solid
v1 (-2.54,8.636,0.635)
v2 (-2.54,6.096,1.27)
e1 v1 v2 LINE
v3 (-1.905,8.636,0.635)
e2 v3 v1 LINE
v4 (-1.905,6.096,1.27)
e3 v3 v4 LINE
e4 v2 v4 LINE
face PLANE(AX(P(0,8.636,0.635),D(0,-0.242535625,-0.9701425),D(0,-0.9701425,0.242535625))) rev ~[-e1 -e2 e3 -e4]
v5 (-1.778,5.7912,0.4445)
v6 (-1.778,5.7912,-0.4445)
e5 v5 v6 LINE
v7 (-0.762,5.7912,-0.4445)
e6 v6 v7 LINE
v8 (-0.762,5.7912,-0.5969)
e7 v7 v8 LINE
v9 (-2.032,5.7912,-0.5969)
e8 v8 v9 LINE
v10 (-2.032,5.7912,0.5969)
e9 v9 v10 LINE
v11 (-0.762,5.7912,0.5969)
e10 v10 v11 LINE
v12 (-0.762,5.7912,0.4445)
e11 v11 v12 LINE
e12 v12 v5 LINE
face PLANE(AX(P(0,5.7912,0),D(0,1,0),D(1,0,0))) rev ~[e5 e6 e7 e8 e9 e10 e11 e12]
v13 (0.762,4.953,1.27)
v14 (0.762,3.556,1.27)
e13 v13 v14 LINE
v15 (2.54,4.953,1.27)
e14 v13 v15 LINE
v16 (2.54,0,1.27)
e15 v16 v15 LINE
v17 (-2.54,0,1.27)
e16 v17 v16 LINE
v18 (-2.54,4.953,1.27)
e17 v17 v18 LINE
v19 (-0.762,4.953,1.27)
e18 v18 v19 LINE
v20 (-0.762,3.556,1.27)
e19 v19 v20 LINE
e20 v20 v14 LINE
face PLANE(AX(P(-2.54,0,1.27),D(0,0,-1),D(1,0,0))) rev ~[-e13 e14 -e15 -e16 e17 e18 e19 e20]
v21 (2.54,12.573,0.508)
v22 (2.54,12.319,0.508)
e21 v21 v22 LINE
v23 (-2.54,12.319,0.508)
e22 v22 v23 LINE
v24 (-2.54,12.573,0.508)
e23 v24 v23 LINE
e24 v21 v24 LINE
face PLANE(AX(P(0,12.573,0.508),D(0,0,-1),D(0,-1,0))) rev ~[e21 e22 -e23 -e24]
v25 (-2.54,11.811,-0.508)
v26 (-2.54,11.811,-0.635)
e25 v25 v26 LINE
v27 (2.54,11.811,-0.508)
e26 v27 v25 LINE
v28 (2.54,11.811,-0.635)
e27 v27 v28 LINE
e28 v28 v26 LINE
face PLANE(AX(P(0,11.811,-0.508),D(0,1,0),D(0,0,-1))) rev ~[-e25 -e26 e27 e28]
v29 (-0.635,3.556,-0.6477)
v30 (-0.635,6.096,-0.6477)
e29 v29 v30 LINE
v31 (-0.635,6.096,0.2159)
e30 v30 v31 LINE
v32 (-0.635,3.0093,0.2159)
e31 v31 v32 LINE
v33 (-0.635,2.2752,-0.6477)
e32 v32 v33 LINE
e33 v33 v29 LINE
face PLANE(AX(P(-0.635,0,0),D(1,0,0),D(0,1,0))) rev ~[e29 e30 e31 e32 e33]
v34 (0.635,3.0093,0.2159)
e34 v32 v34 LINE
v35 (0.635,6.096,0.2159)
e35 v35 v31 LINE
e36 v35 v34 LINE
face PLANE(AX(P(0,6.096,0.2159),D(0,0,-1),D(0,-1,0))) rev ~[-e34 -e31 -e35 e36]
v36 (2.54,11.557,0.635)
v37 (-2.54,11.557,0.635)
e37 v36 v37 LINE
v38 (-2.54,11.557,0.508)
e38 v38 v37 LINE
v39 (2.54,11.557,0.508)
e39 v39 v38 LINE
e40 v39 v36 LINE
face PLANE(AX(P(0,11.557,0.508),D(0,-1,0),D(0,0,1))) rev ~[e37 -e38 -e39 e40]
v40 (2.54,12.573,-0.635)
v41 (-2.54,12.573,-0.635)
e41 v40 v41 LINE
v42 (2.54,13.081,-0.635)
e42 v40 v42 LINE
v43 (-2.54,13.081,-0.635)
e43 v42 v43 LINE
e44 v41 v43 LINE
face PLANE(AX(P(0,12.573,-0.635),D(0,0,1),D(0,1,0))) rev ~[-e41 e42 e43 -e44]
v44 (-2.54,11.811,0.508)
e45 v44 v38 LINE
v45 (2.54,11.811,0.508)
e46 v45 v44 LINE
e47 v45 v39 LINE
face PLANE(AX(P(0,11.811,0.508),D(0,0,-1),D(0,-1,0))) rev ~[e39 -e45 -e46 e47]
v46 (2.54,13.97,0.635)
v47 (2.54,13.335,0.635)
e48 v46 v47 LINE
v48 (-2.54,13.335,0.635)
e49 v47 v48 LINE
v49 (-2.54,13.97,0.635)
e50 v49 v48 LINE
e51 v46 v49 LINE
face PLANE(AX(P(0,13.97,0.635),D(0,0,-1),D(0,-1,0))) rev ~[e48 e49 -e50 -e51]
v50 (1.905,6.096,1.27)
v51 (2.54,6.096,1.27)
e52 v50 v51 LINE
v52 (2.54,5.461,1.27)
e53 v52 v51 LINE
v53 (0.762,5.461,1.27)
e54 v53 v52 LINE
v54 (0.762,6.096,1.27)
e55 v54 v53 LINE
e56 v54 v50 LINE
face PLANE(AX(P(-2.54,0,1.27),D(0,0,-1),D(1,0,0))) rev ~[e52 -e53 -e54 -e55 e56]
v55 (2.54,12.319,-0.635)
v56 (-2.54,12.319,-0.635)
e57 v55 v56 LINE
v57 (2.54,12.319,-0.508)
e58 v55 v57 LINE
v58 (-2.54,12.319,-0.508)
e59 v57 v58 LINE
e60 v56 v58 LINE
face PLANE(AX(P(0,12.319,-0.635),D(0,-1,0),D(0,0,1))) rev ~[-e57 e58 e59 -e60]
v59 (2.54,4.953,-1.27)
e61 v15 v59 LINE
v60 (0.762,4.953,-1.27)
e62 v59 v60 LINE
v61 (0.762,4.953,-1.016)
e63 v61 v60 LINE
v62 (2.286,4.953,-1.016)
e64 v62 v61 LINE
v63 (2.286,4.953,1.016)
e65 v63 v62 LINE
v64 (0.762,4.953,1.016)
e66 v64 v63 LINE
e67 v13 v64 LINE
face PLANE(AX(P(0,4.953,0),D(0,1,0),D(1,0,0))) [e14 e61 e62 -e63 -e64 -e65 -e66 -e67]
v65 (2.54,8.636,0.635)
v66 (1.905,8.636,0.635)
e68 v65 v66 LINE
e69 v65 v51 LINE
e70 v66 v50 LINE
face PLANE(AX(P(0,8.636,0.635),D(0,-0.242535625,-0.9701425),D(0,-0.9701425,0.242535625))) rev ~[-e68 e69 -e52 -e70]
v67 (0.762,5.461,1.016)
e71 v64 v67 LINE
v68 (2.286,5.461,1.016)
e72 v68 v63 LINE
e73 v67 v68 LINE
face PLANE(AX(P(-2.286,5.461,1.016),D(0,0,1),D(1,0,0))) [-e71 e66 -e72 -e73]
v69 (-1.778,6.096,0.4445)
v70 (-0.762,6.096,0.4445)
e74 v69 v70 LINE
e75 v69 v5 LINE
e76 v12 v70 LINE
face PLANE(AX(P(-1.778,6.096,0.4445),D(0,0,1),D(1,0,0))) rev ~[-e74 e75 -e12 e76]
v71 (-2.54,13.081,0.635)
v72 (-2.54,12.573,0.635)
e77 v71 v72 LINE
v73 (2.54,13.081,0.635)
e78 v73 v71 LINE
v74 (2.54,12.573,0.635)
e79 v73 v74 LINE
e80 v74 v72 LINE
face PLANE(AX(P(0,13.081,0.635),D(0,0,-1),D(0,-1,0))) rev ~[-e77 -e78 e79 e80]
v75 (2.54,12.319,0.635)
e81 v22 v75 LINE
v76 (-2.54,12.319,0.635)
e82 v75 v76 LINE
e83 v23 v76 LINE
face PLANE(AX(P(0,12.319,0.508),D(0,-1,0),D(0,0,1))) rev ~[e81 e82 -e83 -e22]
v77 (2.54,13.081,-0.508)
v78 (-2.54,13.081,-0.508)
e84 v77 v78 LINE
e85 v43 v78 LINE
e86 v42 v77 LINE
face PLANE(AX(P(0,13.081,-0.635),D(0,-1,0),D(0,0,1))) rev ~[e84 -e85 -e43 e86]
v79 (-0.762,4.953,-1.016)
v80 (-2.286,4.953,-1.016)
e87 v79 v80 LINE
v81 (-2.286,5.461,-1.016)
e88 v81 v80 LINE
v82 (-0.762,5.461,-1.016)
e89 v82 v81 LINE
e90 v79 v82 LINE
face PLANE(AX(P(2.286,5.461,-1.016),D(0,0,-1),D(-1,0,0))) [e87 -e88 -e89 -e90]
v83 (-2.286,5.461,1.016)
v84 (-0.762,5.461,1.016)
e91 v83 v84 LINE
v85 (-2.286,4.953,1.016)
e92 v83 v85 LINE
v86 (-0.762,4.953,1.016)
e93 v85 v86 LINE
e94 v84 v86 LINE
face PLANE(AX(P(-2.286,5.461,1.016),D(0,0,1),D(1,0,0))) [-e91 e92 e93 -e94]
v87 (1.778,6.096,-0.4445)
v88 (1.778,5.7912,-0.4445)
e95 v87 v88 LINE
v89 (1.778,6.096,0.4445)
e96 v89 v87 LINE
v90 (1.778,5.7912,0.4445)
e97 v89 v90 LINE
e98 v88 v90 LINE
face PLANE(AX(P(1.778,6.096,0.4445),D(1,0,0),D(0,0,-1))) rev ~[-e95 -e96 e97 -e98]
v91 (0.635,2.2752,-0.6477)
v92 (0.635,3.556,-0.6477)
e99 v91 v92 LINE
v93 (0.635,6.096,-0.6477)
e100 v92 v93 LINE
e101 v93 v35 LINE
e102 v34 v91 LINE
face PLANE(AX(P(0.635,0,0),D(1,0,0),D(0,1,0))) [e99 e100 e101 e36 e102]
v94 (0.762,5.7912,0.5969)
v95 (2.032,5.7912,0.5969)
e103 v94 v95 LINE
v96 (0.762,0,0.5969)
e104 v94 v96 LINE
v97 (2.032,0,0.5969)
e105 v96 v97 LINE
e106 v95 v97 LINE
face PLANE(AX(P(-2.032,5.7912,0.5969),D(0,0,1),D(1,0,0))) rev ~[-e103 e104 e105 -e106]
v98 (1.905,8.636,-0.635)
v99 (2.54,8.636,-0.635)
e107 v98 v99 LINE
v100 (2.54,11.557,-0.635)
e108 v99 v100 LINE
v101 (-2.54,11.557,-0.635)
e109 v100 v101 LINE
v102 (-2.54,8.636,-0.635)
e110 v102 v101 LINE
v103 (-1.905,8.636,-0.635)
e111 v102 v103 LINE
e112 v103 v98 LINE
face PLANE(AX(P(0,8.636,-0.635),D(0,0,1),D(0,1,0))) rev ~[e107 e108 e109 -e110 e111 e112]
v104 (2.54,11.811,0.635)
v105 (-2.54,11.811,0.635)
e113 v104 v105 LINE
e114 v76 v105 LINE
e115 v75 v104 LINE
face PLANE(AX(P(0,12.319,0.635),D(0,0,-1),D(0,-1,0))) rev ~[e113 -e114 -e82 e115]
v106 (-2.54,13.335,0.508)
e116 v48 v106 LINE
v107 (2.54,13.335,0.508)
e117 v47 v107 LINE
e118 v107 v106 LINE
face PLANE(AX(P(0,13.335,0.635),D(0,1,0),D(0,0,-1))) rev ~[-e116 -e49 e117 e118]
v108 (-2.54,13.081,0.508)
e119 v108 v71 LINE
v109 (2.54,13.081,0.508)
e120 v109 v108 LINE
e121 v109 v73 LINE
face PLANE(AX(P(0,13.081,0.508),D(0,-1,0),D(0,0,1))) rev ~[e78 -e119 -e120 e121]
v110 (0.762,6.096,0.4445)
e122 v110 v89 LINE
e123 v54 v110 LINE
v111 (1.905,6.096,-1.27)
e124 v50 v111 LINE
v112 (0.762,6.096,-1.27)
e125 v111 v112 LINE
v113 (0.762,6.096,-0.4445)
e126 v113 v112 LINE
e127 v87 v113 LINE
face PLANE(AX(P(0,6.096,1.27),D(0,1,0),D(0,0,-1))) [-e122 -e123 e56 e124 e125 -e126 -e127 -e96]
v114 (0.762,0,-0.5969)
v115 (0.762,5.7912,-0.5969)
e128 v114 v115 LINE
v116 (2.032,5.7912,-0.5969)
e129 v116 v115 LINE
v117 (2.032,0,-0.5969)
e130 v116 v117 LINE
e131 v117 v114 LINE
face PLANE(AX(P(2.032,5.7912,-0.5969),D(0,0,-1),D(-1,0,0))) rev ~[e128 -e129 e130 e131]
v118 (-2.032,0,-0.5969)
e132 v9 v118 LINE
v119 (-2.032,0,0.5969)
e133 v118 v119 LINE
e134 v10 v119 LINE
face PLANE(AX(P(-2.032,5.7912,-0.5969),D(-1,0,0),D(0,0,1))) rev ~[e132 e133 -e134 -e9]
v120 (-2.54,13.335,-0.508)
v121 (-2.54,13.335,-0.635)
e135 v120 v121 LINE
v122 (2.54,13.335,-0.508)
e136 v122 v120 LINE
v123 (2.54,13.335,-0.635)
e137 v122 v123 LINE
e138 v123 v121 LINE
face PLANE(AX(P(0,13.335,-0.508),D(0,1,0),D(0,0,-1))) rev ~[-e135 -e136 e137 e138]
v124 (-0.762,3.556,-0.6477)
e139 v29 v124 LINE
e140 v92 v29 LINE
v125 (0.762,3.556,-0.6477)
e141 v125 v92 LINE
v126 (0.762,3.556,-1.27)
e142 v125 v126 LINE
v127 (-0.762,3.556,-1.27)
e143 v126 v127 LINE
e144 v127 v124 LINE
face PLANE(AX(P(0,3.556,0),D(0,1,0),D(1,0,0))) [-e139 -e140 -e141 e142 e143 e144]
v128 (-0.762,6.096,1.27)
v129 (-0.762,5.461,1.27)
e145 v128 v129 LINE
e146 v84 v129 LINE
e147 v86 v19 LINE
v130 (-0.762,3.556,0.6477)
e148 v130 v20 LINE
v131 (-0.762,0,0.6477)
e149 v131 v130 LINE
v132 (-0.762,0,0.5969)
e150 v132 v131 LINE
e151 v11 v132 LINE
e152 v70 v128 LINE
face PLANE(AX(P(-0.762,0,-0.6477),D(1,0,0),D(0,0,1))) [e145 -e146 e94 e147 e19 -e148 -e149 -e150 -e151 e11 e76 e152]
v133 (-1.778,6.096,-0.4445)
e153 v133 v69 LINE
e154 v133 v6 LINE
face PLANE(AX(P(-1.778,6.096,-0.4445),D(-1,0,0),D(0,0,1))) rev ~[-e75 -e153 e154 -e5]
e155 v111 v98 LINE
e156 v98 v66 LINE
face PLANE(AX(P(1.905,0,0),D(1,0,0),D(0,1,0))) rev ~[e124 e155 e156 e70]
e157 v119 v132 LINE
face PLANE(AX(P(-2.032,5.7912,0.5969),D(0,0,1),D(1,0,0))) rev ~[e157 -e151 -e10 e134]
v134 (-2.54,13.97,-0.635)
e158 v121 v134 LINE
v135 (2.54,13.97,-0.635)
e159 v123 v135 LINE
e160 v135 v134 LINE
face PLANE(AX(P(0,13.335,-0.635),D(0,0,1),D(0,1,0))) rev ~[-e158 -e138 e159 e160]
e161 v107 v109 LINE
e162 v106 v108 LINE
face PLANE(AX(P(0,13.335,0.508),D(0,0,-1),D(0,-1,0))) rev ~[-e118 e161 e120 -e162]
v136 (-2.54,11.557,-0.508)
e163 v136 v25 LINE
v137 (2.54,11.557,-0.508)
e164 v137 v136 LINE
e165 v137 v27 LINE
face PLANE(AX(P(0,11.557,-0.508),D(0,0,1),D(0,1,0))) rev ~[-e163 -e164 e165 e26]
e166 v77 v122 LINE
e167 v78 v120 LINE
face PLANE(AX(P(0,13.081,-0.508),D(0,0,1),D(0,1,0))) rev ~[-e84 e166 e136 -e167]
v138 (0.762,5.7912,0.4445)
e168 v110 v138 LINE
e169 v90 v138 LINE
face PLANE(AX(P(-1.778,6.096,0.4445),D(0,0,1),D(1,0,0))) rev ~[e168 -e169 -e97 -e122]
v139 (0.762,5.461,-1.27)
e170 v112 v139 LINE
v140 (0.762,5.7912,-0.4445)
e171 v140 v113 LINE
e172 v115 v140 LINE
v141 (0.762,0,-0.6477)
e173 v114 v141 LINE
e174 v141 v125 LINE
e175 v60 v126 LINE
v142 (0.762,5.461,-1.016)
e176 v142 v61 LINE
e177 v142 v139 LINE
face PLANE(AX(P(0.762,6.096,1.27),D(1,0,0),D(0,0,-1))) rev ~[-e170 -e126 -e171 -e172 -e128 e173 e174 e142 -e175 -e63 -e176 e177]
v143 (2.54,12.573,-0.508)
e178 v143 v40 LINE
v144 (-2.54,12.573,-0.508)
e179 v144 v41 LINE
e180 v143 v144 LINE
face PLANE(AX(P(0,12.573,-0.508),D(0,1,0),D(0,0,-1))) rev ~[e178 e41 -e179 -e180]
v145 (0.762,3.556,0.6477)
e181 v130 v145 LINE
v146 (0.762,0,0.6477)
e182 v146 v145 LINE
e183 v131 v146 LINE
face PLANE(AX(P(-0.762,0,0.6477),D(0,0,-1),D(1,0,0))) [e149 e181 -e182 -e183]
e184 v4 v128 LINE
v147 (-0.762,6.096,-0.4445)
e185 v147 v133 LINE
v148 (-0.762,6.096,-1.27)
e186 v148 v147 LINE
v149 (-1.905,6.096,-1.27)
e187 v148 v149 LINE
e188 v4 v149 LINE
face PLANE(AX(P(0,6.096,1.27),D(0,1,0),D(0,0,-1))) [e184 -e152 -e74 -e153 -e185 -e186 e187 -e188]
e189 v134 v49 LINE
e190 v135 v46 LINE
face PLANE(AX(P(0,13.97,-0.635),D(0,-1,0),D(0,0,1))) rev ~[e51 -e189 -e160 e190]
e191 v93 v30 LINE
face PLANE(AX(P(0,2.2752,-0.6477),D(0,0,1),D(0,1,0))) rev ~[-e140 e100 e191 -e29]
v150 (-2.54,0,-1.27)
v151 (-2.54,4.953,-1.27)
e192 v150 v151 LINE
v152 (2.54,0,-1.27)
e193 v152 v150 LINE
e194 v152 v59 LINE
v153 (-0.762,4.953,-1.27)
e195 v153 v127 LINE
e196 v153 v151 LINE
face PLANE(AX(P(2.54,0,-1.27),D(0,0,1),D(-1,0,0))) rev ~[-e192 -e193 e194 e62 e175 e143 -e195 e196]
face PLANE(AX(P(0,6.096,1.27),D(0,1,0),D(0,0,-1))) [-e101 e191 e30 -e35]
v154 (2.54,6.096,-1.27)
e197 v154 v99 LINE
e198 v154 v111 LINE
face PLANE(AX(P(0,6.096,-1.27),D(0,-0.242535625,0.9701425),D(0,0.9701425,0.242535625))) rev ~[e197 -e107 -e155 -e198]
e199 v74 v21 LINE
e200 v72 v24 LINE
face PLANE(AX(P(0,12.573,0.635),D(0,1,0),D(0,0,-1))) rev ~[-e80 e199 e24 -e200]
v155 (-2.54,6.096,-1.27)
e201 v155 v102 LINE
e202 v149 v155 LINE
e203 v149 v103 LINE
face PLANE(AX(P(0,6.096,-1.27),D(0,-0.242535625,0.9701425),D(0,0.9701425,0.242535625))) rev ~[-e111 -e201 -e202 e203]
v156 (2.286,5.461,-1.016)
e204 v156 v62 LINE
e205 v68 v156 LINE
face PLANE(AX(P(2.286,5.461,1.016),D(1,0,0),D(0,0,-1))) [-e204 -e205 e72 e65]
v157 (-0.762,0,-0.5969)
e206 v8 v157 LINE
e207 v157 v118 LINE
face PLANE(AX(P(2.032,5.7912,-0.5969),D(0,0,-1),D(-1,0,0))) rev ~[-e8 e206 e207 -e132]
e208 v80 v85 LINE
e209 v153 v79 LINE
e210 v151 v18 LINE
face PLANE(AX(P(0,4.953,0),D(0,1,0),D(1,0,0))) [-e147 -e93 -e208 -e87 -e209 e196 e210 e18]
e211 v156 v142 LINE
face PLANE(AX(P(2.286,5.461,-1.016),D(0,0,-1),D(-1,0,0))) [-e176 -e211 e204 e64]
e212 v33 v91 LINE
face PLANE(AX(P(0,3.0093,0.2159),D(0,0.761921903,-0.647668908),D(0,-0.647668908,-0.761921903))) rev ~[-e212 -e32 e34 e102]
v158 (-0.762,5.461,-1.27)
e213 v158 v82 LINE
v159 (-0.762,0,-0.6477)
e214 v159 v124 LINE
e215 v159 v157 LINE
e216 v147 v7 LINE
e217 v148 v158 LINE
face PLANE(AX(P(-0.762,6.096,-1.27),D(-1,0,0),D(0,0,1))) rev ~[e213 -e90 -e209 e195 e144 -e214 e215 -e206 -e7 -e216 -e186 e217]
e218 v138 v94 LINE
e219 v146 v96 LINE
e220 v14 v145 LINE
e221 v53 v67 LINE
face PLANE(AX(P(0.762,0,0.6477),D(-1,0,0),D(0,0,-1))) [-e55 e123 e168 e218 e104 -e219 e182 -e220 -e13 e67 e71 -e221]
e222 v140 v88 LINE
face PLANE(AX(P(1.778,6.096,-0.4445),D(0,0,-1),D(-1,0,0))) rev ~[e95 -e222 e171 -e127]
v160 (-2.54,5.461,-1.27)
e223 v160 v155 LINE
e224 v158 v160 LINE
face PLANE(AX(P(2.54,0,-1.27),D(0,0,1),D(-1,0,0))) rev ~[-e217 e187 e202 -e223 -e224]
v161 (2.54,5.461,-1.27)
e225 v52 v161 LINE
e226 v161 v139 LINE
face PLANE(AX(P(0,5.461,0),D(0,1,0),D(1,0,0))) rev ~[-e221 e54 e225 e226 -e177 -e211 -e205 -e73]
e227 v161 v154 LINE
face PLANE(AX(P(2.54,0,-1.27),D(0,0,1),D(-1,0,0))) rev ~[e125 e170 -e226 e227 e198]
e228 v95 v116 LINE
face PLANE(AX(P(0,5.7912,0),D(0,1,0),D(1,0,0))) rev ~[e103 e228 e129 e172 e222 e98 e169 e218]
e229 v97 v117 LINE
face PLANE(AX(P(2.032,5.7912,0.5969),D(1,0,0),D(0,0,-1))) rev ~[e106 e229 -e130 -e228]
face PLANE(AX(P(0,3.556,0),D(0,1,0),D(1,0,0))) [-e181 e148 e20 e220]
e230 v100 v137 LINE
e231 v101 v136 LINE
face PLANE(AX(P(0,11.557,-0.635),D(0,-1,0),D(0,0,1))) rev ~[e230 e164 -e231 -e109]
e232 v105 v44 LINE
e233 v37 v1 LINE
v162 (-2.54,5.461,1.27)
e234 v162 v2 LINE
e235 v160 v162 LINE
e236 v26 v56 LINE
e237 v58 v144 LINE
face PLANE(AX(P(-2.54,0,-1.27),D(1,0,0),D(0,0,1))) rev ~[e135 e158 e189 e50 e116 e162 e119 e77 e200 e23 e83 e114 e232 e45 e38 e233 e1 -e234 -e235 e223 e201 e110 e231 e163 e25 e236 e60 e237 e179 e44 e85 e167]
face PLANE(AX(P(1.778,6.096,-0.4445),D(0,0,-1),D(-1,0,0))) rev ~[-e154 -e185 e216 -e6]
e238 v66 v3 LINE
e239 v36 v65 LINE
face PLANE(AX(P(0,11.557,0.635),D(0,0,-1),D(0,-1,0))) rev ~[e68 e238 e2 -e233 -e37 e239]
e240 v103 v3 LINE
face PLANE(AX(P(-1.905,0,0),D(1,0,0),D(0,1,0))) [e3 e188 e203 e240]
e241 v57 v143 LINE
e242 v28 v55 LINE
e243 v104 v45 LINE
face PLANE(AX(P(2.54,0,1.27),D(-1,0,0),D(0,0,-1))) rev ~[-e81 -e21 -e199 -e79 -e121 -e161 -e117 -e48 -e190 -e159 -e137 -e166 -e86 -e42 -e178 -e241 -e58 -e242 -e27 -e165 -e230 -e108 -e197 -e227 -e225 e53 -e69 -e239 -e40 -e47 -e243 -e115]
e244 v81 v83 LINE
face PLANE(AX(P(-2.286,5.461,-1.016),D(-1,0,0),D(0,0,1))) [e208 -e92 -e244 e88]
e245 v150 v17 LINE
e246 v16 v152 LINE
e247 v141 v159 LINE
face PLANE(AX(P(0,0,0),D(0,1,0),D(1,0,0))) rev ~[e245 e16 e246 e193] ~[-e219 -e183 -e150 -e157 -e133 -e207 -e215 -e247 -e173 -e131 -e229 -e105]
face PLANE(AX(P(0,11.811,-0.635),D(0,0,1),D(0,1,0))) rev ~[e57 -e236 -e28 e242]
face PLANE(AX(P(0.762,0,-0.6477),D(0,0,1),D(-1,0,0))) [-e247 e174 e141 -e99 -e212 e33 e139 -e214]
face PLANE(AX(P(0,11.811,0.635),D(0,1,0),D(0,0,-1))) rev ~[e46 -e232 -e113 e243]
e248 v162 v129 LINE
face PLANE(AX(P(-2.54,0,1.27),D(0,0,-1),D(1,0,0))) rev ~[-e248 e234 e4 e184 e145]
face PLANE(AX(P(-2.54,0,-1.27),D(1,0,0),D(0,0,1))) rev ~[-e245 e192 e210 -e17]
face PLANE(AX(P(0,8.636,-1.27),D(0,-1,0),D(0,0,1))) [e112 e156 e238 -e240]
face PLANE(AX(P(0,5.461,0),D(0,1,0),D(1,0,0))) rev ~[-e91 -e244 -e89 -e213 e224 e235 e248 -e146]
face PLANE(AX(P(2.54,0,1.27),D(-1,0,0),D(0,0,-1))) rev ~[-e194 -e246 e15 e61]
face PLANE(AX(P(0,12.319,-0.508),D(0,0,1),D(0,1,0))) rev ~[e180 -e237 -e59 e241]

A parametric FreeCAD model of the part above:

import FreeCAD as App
import Part
import Sketcher
Q = App.Units.Quantity

doc = App.newDocument("Part")
body = doc.addObject("PartDesign::Body", "Body")

# Sketch on XZ plane
sketch1 = body.newObject("Sketcher::SketchObject", "Sketch")
sketch1.AttachmentSupport = (doc.getObject("XZ_Plane"), [""])
sketch1.MapMode = "FlatFace"
sketch1.addGeometry(Part.LineSegment(App.Vector(2.5, -1.3, 0), App.Vector(-2.5, -1.3, 0)), False)
sketch1.addGeometry(Part.LineSegment(App.Vector(-2.5, -1.3, 0), App.Vector(-2.5, 1.3, 0)), False)
sketch1.addGeometry(Part.LineSegment(App.Vector(-2.5, 1.3, 0), App.Vector(2.5, 1.3, 0)), False)
sketch1.addGeometry(Part.LineSegment(App.Vector(2.5, 1.3, 0), App.Vector(2.5, -1.3, 0)), False)
sketch1.addConstraint(Sketcher.Constraint("Coincident", 0, 2, 1, 1))
sketch1.addConstraint(Sketcher.Constraint("Coincident", 1, 2, 2, 1))
sketch1.addConstraint(Sketcher.Constraint("Coincident", 2, 2, 3, 1))
sketch1.addConstraint(Sketcher.Constraint("Coincident", 3, 2, 0, 1))
sketch1.addConstraint(Sketcher.Constraint("Horizontal", 0))
sketch1.addConstraint(Sketcher.Constraint("Vertical", 1))
sketch1.addConstraint(Sketcher.Constraint("Horizontal", 2))
sketch1.addConstraint(Sketcher.Constraint("Vertical", 3))
sketch1.addConstraint(Sketcher.Constraint("Symmetric", 0, 2, 2, 2, -1, 1))
sketch1.addConstraint(Sketcher.Constraint("DistanceX", 0, 2, 0, 1, Q("0.2 in")))
sketch1.addConstraint(Sketcher.Constraint("DistanceY", 1, 1, 1, 2, Q("0.1 in")))
pad1 = body.newObject("PartDesign::Pad", "Pad")
pad1.Profile = sketch1
pad1.Length = Q("0.24 in")
pad1.Reversed = True

# Sketch on XZ plane
sketch2 = body.newObject("Sketcher::SketchObject", "Sketch001")
sketch2.AttachmentSupport = (doc.getObject("XZ_Plane"), [""])
sketch2.MapMode = "FlatFace"
sketch2.AttachmentOffset = App.Placement(App.Vector(0, 0, -0.215 * 25.4), App.Rotation())
sketch2.addGeometry(Part.LineSegment(App.Vector(2.8, -2.5, 0), App.Vector(-2.8, -2.5, 0)), False)
sketch2.addGeometry(Part.LineSegment(App.Vector(-2.8, -2.5, 0), App.Vector(-2.8, 2.5, 0)), False)
sketch2.addGeometry(Part.LineSegment(App.Vector(-2.8, 2.5, 0), App.Vector(2.8, 2.5, 0)), False)
sketch2.addGeometry(Part.LineSegment(App.Vector(2.8, 2.5, 0), App.Vector(2.8, -2.5, 0)), False)
sketch2.addGeometry(Part.LineSegment(App.Vector(-2.3, 1, 0), App.Vector(-2.3, -1, 0)), False)
sketch2.addGeometry(Part.LineSegment(App.Vector(-2.3, -1, 0), App.Vector(2.3, -1, 0)), False)
sketch2.addGeometry(Part.LineSegment(App.Vector(2.3, -1, 0), App.Vector(2.3, 1, 0)), False)
sketch2.addGeometry(Part.LineSegment(App.Vector(2.3, 1, 0), App.Vector(-2.3, 1, 0)), False)
sketch2.addConstraint(Sketcher.Constraint("Coincident", 0, 2, 1, 1))
sketch2.addConstraint(Sketcher.Constraint("Coincident", 1, 2, 2, 1))
sketch2.addConstraint(Sketcher.Constraint("Coincident", 2, 2, 3, 1))
sketch2.addConstraint(Sketcher.Constraint("Coincident", 3, 2, 0, 1))
sketch2.addConstraint(Sketcher.Constraint("Coincident", 4, 2, 5, 1))
sketch2.addConstraint(Sketcher.Constraint("Coincident", 5, 2, 6, 1))
sketch2.addConstraint(Sketcher.Constraint("Coincident", 6, 2, 7, 1))
sketch2.addConstraint(Sketcher.Constraint("Coincident", 7, 2, 4, 1))
sketch2.addConstraint(Sketcher.Constraint("Horizontal", 0))
sketch2.addConstraint(Sketcher.Constraint("Vertical", 1))
sketch2.addConstraint(Sketcher.Constraint("Horizontal", 2))
sketch2.addConstraint(Sketcher.Constraint("Vertical", 3))
sketch2.addConstraint(Sketcher.Constraint("Vertical", 4))
sketch2.addConstraint(Sketcher.Constraint("Horizontal", 5))
sketch2.addConstraint(Sketcher.Constraint("Vertical", 6))
sketch2.addConstraint(Sketcher.Constraint("Horizontal", 7))
sketch2.addConstraint(Sketcher.Constraint("Symmetric", 0, 2, 2, 2, -1, 1))
sketch2.addConstraint(Sketcher.Constraint("Symmetric", 4, 2, 6, 2, -1, 1))
sketch2.addConstraint(Sketcher.Constraint("DistanceY", 1, 1, 1, 2, Q("0.2 in")))
sketch2.addConstraint(Sketcher.Constraint("DistanceX", 0, 2, 0, 1, Q("0.22 in")))
sketch2.addConstraint(Sketcher.Constraint("DistanceX", 5, 1, 5, 2, Q("0.18 in")))
sketch2.addConstraint(Sketcher.Constraint("DistanceY", 4, 2, 4, 1, Q("0.08 in")))
pocket1 = body.newObject("PartDesign::Pocket", "Pocket")
pocket1.Profile = sketch2
pocket1.Length = Q("0.02 in")
pocket1.Reversed = True

# Sketch on XZ plane
sketch3 = body.newObject("Sketcher::SketchObject", "Sketch002")
sketch3.AttachmentSupport = (doc.getObject("XZ_Plane"), [""])
sketch3.MapMode = "FlatFace"
sketch3.AttachmentOffset = App.Placement(App.Vector(0, 0, -0.24 * 25.4), App.Rotation())
sketch3.addGeometry(Part.LineSegment(App.Vector(0.8, -1.3, 0), App.Vector(-0.8, -1.3, 0)), False)
sketch3.addGeometry(Part.LineSegment(App.Vector(-0.8, -1.3, 0), App.Vector(-0.8, 1.3, 0)), False)
sketch3.addGeometry(Part.LineSegment(App.Vector(-0.8, 1.3, 0), App.Vector(0.8, 1.3, 0)), False)
sketch3.addGeometry(Part.LineSegment(App.Vector(0.8, 1.3, 0), App.Vector(0.8, -1.3, 0)), False)
sketch3.addConstraint(Sketcher.Constraint("Coincident", 0, 2, 1, 1))
sketch3.addConstraint(Sketcher.Constraint("Coincident", 1, 2, 2, 1))
sketch3.addConstraint(Sketcher.Constraint("Coincident", 2, 2, 3, 1))
sketch3.addConstraint(Sketcher.Constraint("Coincident", 3, 2, 0, 1))
sketch3.addConstraint(Sketcher.Constraint("Horizontal", 0))
sketch3.addConstraint(Sketcher.Constraint("Vertical", 1))
sketch3.addConstraint(Sketcher.Constraint("Horizontal", 2))
sketch3.addConstraint(Sketcher.Constraint("Vertical", 3))
sketch3.addConstraint(Sketcher.Constraint("Symmetric", 0, 2, 2, 2, -1, 1))
sketch3.addConstraint(Sketcher.Constraint("DistanceY", 1, 1, 1, 2, Q("0.1 in")))
sketch3.addConstraint(Sketcher.Constraint("DistanceX", 0, 2, 0, 1, Q("0.06 in")))
pocket2 = body.newObject("PartDesign::Pocket", "Pocket001")
pocket2.Profile = sketch3
pocket2.Length = Q("0.1 in")
pocket2.Reversed = True

# Sketch on XZ plane
sketch4 = body.newObject("Sketcher::SketchObject", "Sketch003")
sketch4.AttachmentSupport = (doc.getObject("XZ_Plane"), [""])
sketch4.MapMode = "FlatFace"
sketch4.AttachmentOffset = App.Placement(App.Vector(0, 0, -0.24 * 25.4), App.Rotation())
sketch4.addGeometry(Part.LineSegment(App.Vector(1.8, -0.4, 0), App.Vector(-1.8, -0.4, 0)), False)
sketch4.addGeometry(Part.LineSegment(App.Vector(-1.8, -0.4, 0), App.Vector(-1.8, 0.4, 0)), False)
sketch4.addGeometry(Part.LineSegment(App.Vector(-1.8, 0.4, 0), App.Vector(1.8, 0.4, 0)), False)
sketch4.addGeometry(Part.LineSegment(App.Vector(1.8, 0.4, 0), App.Vector(1.8, -0.4, 0)), False)
sketch4.addConstraint(Sketcher.Constraint("Coincident", 0, 2, 1, 1))
sketch4.addConstraint(Sketcher.Constraint("Coincident", 1, 2, 2, 1))
sketch4.addConstraint(Sketcher.Constraint("Coincident", 2, 2, 3, 1))
sketch4.addConstraint(Sketcher.Constraint("Coincident", 3, 2, 0, 1))
sketch4.addConstraint(Sketcher.Constraint("Horizontal", 0))
sketch4.addConstraint(Sketcher.Constraint("Vertical", 1))
sketch4.addConstraint(Sketcher.Constraint("Horizontal", 2))
sketch4.addConstraint(Sketcher.Constraint("Vertical", 3))
sketch4.addConstraint(Sketcher.Constraint("Symmetric", 0, 2, 2, 2, -1, 1))
sketch4.addConstraint(Sketcher.Constraint("DistanceX", 0, 2, 0, 1, Q("0.14 in")))
sketch4.addConstraint(Sketcher.Constraint("DistanceY", 1, 1, 1, 2, Q("0.035 in")))
pocket3 = body.newObject("PartDesign::Pocket", "Pocket002")
pocket3.Profile = sketch4
pocket3.Length = Q("0.24 in")
pocket3.Reversed = True

# Sketch on XZ plane
sketch5 = body.newObject("Sketcher::SketchObject", "Sketch004")
sketch5.AttachmentSupport = (doc.getObject("XZ_Plane"), [""])
sketch5.MapMode = "FlatFace"
sketch5.AttachmentOffset = App.Placement(App.Vector(0, 0, -0.228 * 25.4), App.Rotation())
sketch5.addGeometry(Part.LineSegment(App.Vector(2, -0.6, 0), App.Vector(-2, -0.6, 0)), False)
sketch5.addGeometry(Part.LineSegment(App.Vector(-2, -0.6, 0), App.Vector(-2, 0.6, 0)), False)
sketch5.addGeometry(Part.LineSegment(App.Vector(-2, 0.6, 0), App.Vector(2, 0.6, 0)), False)
sketch5.addGeometry(Part.LineSegment(App.Vector(2, 0.6, 0), App.Vector(2, -0.6, 0)), False)
sketch5.addConstraint(Sketcher.Constraint("Coincident", 0, 2, 1, 1))
sketch5.addConstraint(Sketcher.Constraint("Coincident", 1, 2, 2, 1))
sketch5.addConstraint(Sketcher.Constraint("Coincident", 2, 2, 3, 1))
sketch5.addConstraint(Sketcher.Constraint("Coincident", 3, 2, 0, 1))
sketch5.addConstraint(Sketcher.Constraint("Horizontal", 0))
sketch5.addConstraint(Sketcher.Constraint("Vertical", 1))
sketch5.addConstraint(Sketcher.Constraint("Horizontal", 2))
sketch5.addConstraint(Sketcher.Constraint("Vertical", 3))
sketch5.addConstraint(Sketcher.Constraint("Symmetric", 0, 2, 2, 2, -1, 1))
sketch5.addConstraint(Sketcher.Constraint("DistanceX", 0, 2, 0, 1, Q("0.16 in")))
sketch5.addConstraint(Sketcher.Constraint("DistanceY", 1, 1, 1, 2, Q("0.047 in")))
pocket4 = body.newObject("PartDesign::Pocket", "Pocket003")
pocket4.Profile = sketch5
pocket4.Length = Q("0.24 in")
pocket4.Reversed = True

# Sketch on XZ plane
sketch6 = body.newObject("Sketcher::SketchObject", "Sketch005")
sketch6.AttachmentSupport = (doc.getObject("XZ_Plane"), [""])
sketch6.MapMode = "FlatFace"
sketch6.addGeometry(Part.LineSegment(App.Vector(0.8, -0.6, 0), App.Vector(-0.8, -0.6, 0)), False)
sketch6.addGeometry(Part.LineSegment(App.Vector(-0.8, -0.6, 0), App.Vector(-0.8, 0.6, 0)), False)
sketch6.addGeometry(Part.LineSegment(App.Vector(-0.8, 0.6, 0), App.Vector(0.8, 0.6, 0)), False)
sketch6.addGeometry(Part.LineSegment(App.Vector(0.8, 0.6, 0), App.Vector(0.8, -0.6, 0)), False)
sketch6.addConstraint(Sketcher.Constraint("Coincident", 0, 2, 1, 1))
sketch6.addConstraint(Sketcher.Constraint("Coincident", 1, 2, 2, 1))
sketch6.addConstraint(Sketcher.Constraint("Coincident", 2, 2, 3, 1))
sketch6.addConstraint(Sketcher.Constraint("Coincident", 3, 2, 0, 1))
sketch6.addConstraint(Sketcher.Constraint("Horizontal", 0))
sketch6.addConstraint(Sketcher.Constraint("Vertical", 1))
sketch6.addConstraint(Sketcher.Constraint("Horizontal", 2))
sketch6.addConstraint(Sketcher.Constraint("Vertical", 3))
sketch6.addConstraint(Sketcher.Constraint("Symmetric", 0, 2, 2, 2, -1, 1))
sketch6.addConstraint(Sketcher.Constraint("DistanceX", 0, 2, 0, 1, Q("0.06 in")))
sketch6.addConstraint(Sketcher.Constraint("DistanceY", 1, 1, 1, 2, Q("0.051 in")))
pocket5 = body.newObject("PartDesign::Pocket", "Pocket004")
pocket5.Profile = sketch6
pocket5.Length = Q("0.14 in")

# Sketch on YZ plane
sketch7 = body.newObject("Sketcher::SketchObject", "Sketch006")
sketch7.AttachmentSupport = (doc.getObject("YZ_Plane"), [""])
sketch7.MapMode = "FlatFace"
sketch7.addGeometry(Part.LineSegment(App.Vector(6.1, 0.2, 0), App.Vector(3, 0.2, 0)), False)
sketch7.addGeometry(Part.LineSegment(App.Vector(3, 0.2, 0), App.Vector(2.3, -0.6, 0)), False)
sketch7.addGeometry(Part.LineSegment(App.Vector(2.3, -0.6, 0), App.Vector(6.1, -0.6, 0)), False)
sketch7.addGeometry(Part.LineSegment(App.Vector(6.1, -0.6, 0), App.Vector(6.1, 0.2, 0)), False)
sketch7.addConstraint(Sketcher.Constraint("Coincident", 0, 2, 1, 1))
sketch7.addConstraint(Sketcher.Constraint("Coincident", 1, 2, 2, 1))
sketch7.addConstraint(Sketcher.Constraint("Coincident", 2, 2, 3, 1))
sketch7.addConstraint(Sketcher.Constraint("Coincident", 3, 2, 0, 1))
sketch7.addConstraint(Sketcher.Constraint("Horizontal", 0))
sketch7.addConstraint(Sketcher.Constraint("Horizontal", 2))
sketch7.addConstraint(Sketcher.Constraint("Vertical", 3))
sketch7.addConstraint(Sketcher.Constraint("DistanceY", 3, 1, 3, 2, Q("0.034 in")))
sketch7.addConstraint(Sketcher.Constraint("DistanceX", -1, 1, 2, 2, Q("0.24 in")))
sketch7.addConstraint(Sketcher.Constraint("DistanceX", 0, 2, 0, 1, 3.0867))
sketch7.addConstraint(Sketcher.Constraint("DistanceX", 2, 1, 2, 2, 3.8208))
sketch7.addConstraint(Sketcher.Constraint("DistanceY", -1, 1, 0, 2, Q("0.0085 in")))
pad2 = body.newObject("PartDesign::Pad", "Pad001")
pad2.Profile = sketch7
pad2.Length = Q("0.05 in")
pad2.Midplane = True

# Sketch on YZ plane
sketch8 = body.newObject("Sketcher::SketchObject", "Sketch007")
sketch8.AttachmentSupport = (doc.getObject("YZ_Plane"), [""])
sketch8.MapMode = "FlatFace"
sketch8.addGeometry(Part.LineSegment(App.Vector(8.64, 0.64, 0), App.Vector(6.1, 1.27, 0)), False)
sketch8.addGeometry(Part.LineSegment(App.Vector(6.1, 1.27, 0), App.Vector(6.1, -1.27, 0)), False)
sketch8.addGeometry(Part.LineSegment(App.Vector(6.1, -1.27, 0), App.Vector(8.64, -0.64, 0)), False)
sketch8.addGeometry(Part.LineSegment(App.Vector(8.64, -0.64, 0), App.Vector(11.56, -0.64, 0)), False)
sketch8.addGeometry(Part.LineSegment(App.Vector(11.56, -0.64, 0), App.Vector(11.56, -0.51, 0)), False)
sketch8.addGeometry(Part.LineSegment(App.Vector(11.56, -0.51, 0), App.Vector(11.81, -0.51, 0)), False)
sketch8.addGeometry(Part.LineSegment(App.Vector(11.81, -0.51, 0), App.Vector(11.81, -0.64, 0)), False)
sketch8.addGeometry(Part.LineSegment(App.Vector(11.81, -0.64, 0), App.Vector(12.32, -0.64, 0)), False)
sketch8.addGeometry(Part.LineSegment(App.Vector(12.32, -0.64, 0), App.Vector(12.32, -0.51, 0)), False)
sketch8.addGeometry(Part.LineSegment(App.Vector(12.32, -0.51, 0), App.Vector(12.57, -0.51, 0)), False)
sketch8.addGeometry(Part.LineSegment(App.Vector(12.57, -0.51, 0), App.Vector(12.57, -0.64, 0)), False)
sketch8.addGeometry(Part.LineSegment(App.Vector(12.57, -0.64, 0), App.Vector(13.08, -0.64, 0)), False)
sketch8.addGeometry(Part.LineSegment(App.Vector(13.08, -0.64, 0), App.Vector(13.08, -0.51, 0)), False)
sketch8.addGeometry(Part.LineSegment(App.Vector(13.08, -0.51, 0), App.Vector(13.34, -0.51, 0)), False)
sketch8.addGeometry(Part.LineSegment(App.Vector(13.34, -0.51, 0), App.Vector(13.34, -0.64, 0)), False)
sketch8.addGeometry(Part.LineSegment(App.Vector(13.34, -0.64, 0), App.Vector(13.97, -0.64, 0)), False)
sketch8.addGeometry(Part.LineSegment(App.Vector(13.97, -0.64, 0), App.Vector(13.97, 0.64, 0)), False)
sketch8.addGeometry(Part.LineSegment(App.Vector(13.97, 0.64, 0), App.Vector(13.34, 0.64, 0)), False)
sketch8.addGeometry(Part.LineSegment(App.Vector(13.34, 0.64, 0), App.Vector(13.34, 0.51, 0)), False)
sketch8.addGeometry(Part.LineSegment(App.Vector(13.34, 0.51, 0), App.Vector(13.08, 0.51, 0)), False)
sketch8.addGeometry(Part.LineSegment(App.Vector(13.08, 0.51, 0), App.Vector(13.08, 0.64, 0)), False)
sketch8.addGeometry(Part.LineSegment(App.Vector(13.08, 0.64, 0), App.Vector(12.57, 0.64, 0)), False)
sketch8.addGeometry(Part.LineSegment(App.Vector(12.57, 0.64, 0), App.Vector(12.57, 0.51, 0)), False)
sketch8.addGeometry(Part.LineSegment(App.Vector(12.57, 0.51, 0), App.Vector(12.32, 0.51, 0)), False)
sketch8.addGeometry(Part.LineSegment(App.Vector(12.32, 0.51, 0), App.Vector(12.32, 0.64, 0)), False)
sketch8.addGeometry(Part.LineSegment(App.Vector(12.32, 0.64, 0), App.Vector(11.81, 0.64, 0)), False)
sketch8.addGeometry(Part.LineSegment(App.Vector(11.81, 0.64, 0), App.Vector(11.81, 0.51, 0)), False)
sketch8.addGeometry(Part.LineSegment(App.Vector(11.81, 0.51, 0), App.Vector(11.56, 0.51, 0)), False)
sketch8.addGeometry(Part.LineSegment(App.Vector(11.56, 0.51, 0), App.Vector(11.56, 0.64, 0)), False)
sketch8.addGeometry(Part.LineSegment(App.Vector(11.56, 0.64, 0), App.Vector(8.64, 0.64, 0)), False)
sketch8.addConstraint(Sketcher.Constraint("Coincident", 0, 2, 1, 1))
sketch8.addConstraint(Sketcher.Constraint("Coincident", 1, 2, 2, 1))
sketch8.addConstraint(Sketcher.Constraint("Coincident", 2, 2, 3, 1))
sketch8.addConstraint(Sketcher.Constraint("Coincident", 3, 2, 4, 1))
sketch8.addConstraint(Sketcher.Constraint("Coincident", 4, 2, 5, 1))
sketch8.addConstraint(Sketcher.Constraint("Coincident", 5, 2, 6, 1))
sketch8.addConstraint(Sketcher.Constraint("Coincident", 6, 2, 7, 1))
sketch8.addConstraint(Sketcher.Constraint("Coincident", 7, 2, 8, 1))
sketch8.addConstraint(Sketcher.Constraint("Coincident", 8, 2, 9, 1))
sketch8.addConstraint(Sketcher.Constraint("Coincident", 9, 2, 10, 1))
sketch8.addConstraint(Sketcher.Constraint("Coincident", 10, 2, 11, 1))
sketch8.addConstraint(Sketcher.Constraint("Coincident", 11, 2, 12, 1))
sketch8.addConstraint(Sketcher.Constraint("Coincident", 12, 2, 13, 1))
sketch8.addConstraint(Sketcher.Constraint("Coincident", 13, 2, 14, 1))
sketch8.addConstraint(Sketcher.Constraint("Coincident", 14, 2, 15, 1))
sketch8.addConstraint(Sketcher.Constraint("Coincident", 15, 2, 16, 1))
sketch8.addConstraint(Sketcher.Constraint("Coincident", 16, 2, 17, 1))
sketch8.addConstraint(Sketcher.Constraint("Coincident", 17, 2, 18, 1))
sketch8.addConstraint(Sketcher.Constraint("Coincident", 18, 2, 19, 1))
sketch8.addConstraint(Sketcher.Constraint("Coincident", 19, 2, 20, 1))
sketch8.addConstraint(Sketcher.Constraint("Coincident", 20, 2, 21, 1))
sketch8.addConstraint(Sketcher.Constraint("Coincident", 21, 2, 22, 1))
sketch8.addConstraint(Sketcher.Constraint("Coincident", 22, 2, 23, 1))
sketch8.addConstraint(Sketcher.Constraint("Coincident", 23, 2, 24, 1))
sketch8.addConstraint(Sketcher.Constraint("Coincident", 24, 2, 25, 1))
sketch8.addConstraint(Sketcher.Constraint("Coincident", 25, 2, 26, 1))
sketch8.addConstraint(Sketcher.Constraint("Coincident", 26, 2, 27, 1))
sketch8.addConstraint(Sketcher.Constraint("Coincident", 27, 2, 28, 1))
sketch8.addConstraint(Sketcher.Constraint("Coincident", 28, 2, 29, 1))
sketch8.addConstraint(Sketcher.Constraint("Coincident", 29, 2, 0, 1))
sketch8.addConstraint(Sketcher.Constraint("Vertical", 1))
sketch8.addConstraint(Sketcher.Constraint("Horizontal", 3))
sketch8.addConstraint(Sketcher.Constraint("Vertical", 4))
sketch8.addConstraint(Sketcher.Constraint("Horizontal", 5))
sketch8.addConstraint(Sketcher.Constraint("Vertical", 6))
sketch8.addConstraint(Sketcher.Constraint("Horizontal", 7))
sketch8.addConstraint(Sketcher.Constraint("Vertical", 8))
sketch8.addConstraint(Sketcher.Constraint("Horizontal", 9))
sketch8.addConstraint(Sketcher.Constraint("Vertical", 10))
sketch8.addConstraint(Sketcher.Constraint("Horizontal", 11))
sketch8.addConstraint(Sketcher.Constraint("Vertical", 12))
sketch8.addConstraint(Sketcher.Constraint("Horizontal", 13))
sketch8.addConstraint(Sketcher.Constraint("Vertical", 14))
sketch8.addConstraint(Sketcher.Constraint("Horizontal", 15))
sketch8.addConstraint(Sketcher.Constraint("Vertical", 16))
sketch8.addConstraint(Sketcher.Constraint("Horizontal", 17))
sketch8.addConstraint(Sketcher.Constraint("Vertical", 18))
sketch8.addConstraint(Sketcher.Constraint("Horizontal", 19))
sketch8.addConstraint(Sketcher.Constraint("Vertical", 20))
sketch8.addConstraint(Sketcher.Constraint("Horizontal", 21))
sketch8.addConstraint(Sketcher.Constraint("Vertical", 22))
sketch8.addConstraint(Sketcher.Constraint("Horizontal", 23))
sketch8.addConstraint(Sketcher.Constraint("Vertical", 24))
sketch8.addConstraint(Sketcher.Constraint("Horizontal", 25))
sketch8.addConstraint(Sketcher.Constraint("Vertical", 26))
sketch8.addConstraint(Sketcher.Constraint("Horizontal", 27))
sketch8.addConstraint(Sketcher.Constraint("Vertical", 28))
sketch8.addConstraint(Sketcher.Constraint("Horizontal", 29))
sketch8.addConstraint(Sketcher.Constraint("Symmetric", 14, 2, 17, 2, -1))
sketch8.addConstraint(Sketcher.Constraint("Symmetric", 12, 2, 19, 2, -1))
sketch8.addConstraint(Sketcher.Constraint("Symmetric", 10, 2, 21, 2, -1))
sketch8.addConstraint(Sketcher.Constraint("Symmetric", 8, 2, 23, 2, -1))
sketch8.addConstraint(Sketcher.Constraint("Symmetric", 6, 2, 25, 2, -1))
sketch8.addConstraint(Sketcher.Constraint("Symmetric", 4, 2, 27, 2, -1))
sketch8.addConstraint(Sketcher.Constraint("Symmetric", 2, 2, 29, 2, -1))
sketch8.addConstraint(Sketcher.Constraint("Horizontal", 3, 2, 6, 2))
sketch8.addConstraint(Sketcher.Constraint("Horizontal", 5, 2, 8, 2))
sketch8.addConstraint(Sketcher.Constraint("Horizontal", 7, 2, 10, 2))
sketch8.addConstraint(Sketcher.Constraint("Horizontal", 9, 2, 12, 2))
sketch8.addConstraint(Sketcher.Constraint("Horizontal", 11, 2, 14, 2))
sketch8.addConstraint(Sketcher.Constraint("Equal", 5, 9))
sketch8.addConstraint(Sketcher.Constraint("Equal", 7, 11))
sketch8.addConstraint(Sketcher.Constraint("Equal", 9, 13))
sketch8.addConstraint(Sketcher.Constraint("Equal", 0, 2))
sketch8.addConstraint(Sketcher.Constraint("DistanceY", 1, 2, 1, 1, Q("0.1 in")))
sketch8.addConstraint(Sketcher.Constraint("DistanceX", 5, 1, 5, 2, Q("0.01 in")))
sketch8.addConstraint(Sketcher.Constraint("DistanceX", 7, 1, 7, 2, Q("0.02 in")))
sketch8.addConstraint(Sketcher.Constraint("DistanceY", 16, 1, 16, 2, Q("0.05 in")))
sketch8.addConstraint(Sketcher.Constraint("DistanceX", 1, 2, 2, 2, Q("0.1 in")))
sketch8.addConstraint(Sketcher.Constraint("DistanceX", 3, 1, 3, 2, Q("0.115 in")))
sketch8.addConstraint(Sketcher.Constraint("DistanceX", 15, 1, 15, 2, Q("0.025 in")))
sketch8.addConstraint(Sketcher.Constraint("DistanceY", 4, 1, 4, 2, Q("0.005 in")))
sketch8.addConstraint(Sketcher.Constraint("DistanceX", -1, 1, 0, 2, Q("0.24 in")))
pad3 = body.newObject("PartDesign::Pad", "Pad002")
pad3.Profile = sketch8
pad3.Length = Q("0.2 in")
pad3.Midplane = True

# Sketch on YZ plane
sketch9 = body.newObject("Sketcher::SketchObject", "Sketch008")
sketch9.AttachmentSupport = (doc.getObject("YZ_Plane"), [""])
sketch9.MapMode = "FlatFace"
sketch9.addGeometry(Part.LineSegment(App.Vector(8.6, -1.3, 0), App.Vector(8.6, 1.3, 0)), False)
sketch9.addGeometry(Part.LineSegment(App.Vector(8.6, 1.3, 0), App.Vector(6.1, 1.3, 0)), False)
sketch9.addGeometry(Part.LineSegment(App.Vector(6.1, 1.3, 0), App.Vector(6.1, -1.3, 0)), False)
sketch9.addGeometry(Part.LineSegment(App.Vector(6.1, -1.3, 0), App.Vector(8.6, -1.3, 0)), False)
sketch9.addConstraint(Sketcher.Constraint("Coincident", 0, 2, 1, 1))
sketch9.addConstraint(Sketcher.Constraint("Coincident", 1, 2, 2, 1))
sketch9.addConstraint(Sketcher.Constraint("Coincident", 2, 2, 3, 1))
sketch9.addConstraint(Sketcher.Constraint("Coincident", 3, 2, 0, 1))
sketch9.addConstraint(Sketcher.Constraint("Vertical", 0))
sketch9.addConstraint(Sketcher.Constraint("Horizontal", 1))
sketch9.addConstraint(Sketcher.Constraint("Vertical", 2))
sketch9.addConstraint(Sketcher.Constraint("Horizontal", 3))
sketch9.addConstraint(Sketcher.Constraint("Equal", 3, 0))
sketch9.addConstraint(Sketcher.Constraint("DistanceX", 1, 2, 1, 1, Q("0.1 in")))
sketch9.addConstraint(Sketcher.Constraint("DistanceX", -1, 1, 0, 2, Q("0.34 in")))
sketch9.addConstraint(Sketcher.Constraint("DistanceY", -1, 1, 0, 2, Q("0.05 in")))
pocket6 = body.newObject("PartDesign::Pocket", "Pocket005")
pocket6.Profile = sketch9
pocket6.Length = Q("0.15 in")
pocket6.Midplane = True

doc.recompute()
